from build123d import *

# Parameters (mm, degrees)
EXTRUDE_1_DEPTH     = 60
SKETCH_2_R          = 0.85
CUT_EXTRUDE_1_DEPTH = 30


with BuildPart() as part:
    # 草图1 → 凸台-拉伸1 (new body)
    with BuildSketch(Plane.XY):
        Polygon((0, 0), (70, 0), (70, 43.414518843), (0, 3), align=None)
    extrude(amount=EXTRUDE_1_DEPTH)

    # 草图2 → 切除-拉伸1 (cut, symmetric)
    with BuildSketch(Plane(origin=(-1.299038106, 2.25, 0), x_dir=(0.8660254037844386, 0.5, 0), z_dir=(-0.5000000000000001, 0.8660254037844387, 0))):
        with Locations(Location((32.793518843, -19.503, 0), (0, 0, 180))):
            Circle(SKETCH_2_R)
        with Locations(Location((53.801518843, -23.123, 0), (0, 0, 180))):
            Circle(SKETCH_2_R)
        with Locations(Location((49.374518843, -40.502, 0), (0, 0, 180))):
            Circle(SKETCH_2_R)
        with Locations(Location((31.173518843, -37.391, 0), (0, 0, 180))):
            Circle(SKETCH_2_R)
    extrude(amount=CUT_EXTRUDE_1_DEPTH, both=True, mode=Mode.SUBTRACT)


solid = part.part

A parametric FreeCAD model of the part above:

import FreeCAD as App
import Part
import Sketcher

V = App.Vector
Q = App.Units.Quantity

doc = App.newDocument("Part")
body = doc.addObject("PartDesign::Body", "Body")

# Sketch on XY plane
sketch1 = body.newObject("Sketcher::SketchObject", "Sketch")
sketch1.AttachmentSupport = (doc.getObject("XY_Plane"), [""])
sketch1.MapMode = "FlatFace"
sketch1.addGeometry(Part.LineSegment(V(0, 0, 0), V(70, 0, 0)), False)
sketch1.addGeometry(Part.LineSegment(V(70, 0, 0), V(70, 43.4, 0)), False)
sketch1.addGeometry(Part.LineSegment(V(70, 43.4, 0), V(0, 3, 0)), False)
sketch1.addGeometry(Part.LineSegment(V(0, 3, 0), V(0, 0, 0)), False)
sketch1.addConstraint(Sketcher.Constraint("Coincident", 0, 2, 1, 1))
sketch1.addConstraint(Sketcher.Constraint("Coincident", 1, 2, 2, 1))
sketch1.addConstraint(Sketcher.Constraint("Coincident", 2, 2, 3, 1))
sketch1.addConstraint(Sketcher.Constraint("Coincident", 3, 2, 0, 1))
sketch1.addConstraint(Sketcher.Constraint("Horizontal", 0))
sketch1.addConstraint(Sketcher.Constraint("Vertical", 1))
sketch1.addConstraint(Sketcher.Constraint("Vertical", 3))
sketch1.addConstraint(Sketcher.Constraint("Coincident", 3, 2, -1, 1))
sketch1.addConstraint(Sketcher.Constraint("DistanceX", 0, 1, 0, 2, Q("70 mm")))
sketch1.addConstraint(Sketcher.Constraint("DistanceY", 3, 2, 3, 1, Q("3 mm")))
sketch1.addConstraint(Sketcher.Constraint("Angle", 2, Q("-150 deg")))
pad1 = body.newObject("PartDesign::Pad", "Pad")
pad1.Profile = sketch1
pad1.Length = 60

# Sketch on an angled plane
sketch2 = body.newObject("Sketcher::SketchObject", "Sketch001")
sketch2.Placement = App.Placement(V(-1.299038, 2.25, 0), App.Rotation(V(0.866025404, 0.5, 0), V(0, 0, -1), V(-0.5, 0.866025404, 0), "ZXY"))
sketch2.addGeometry(Part.Circle(V(32.8, -19.5, 0), V(0, 0, 1), 0.8), False)
sketch2.addGeometry(Part.Circle(V(53.8, -23.1, 0), V(0, 0, 1), 0.8), False)
sketch2.addGeometry(Part.Circle(V(49.4, -40.5, 0), V(0, 0, 1), 0.8), False)
sketch2.addGeometry(Part.Circle(V(31.2, -37.4, 0), V(0, 0, 1), 0.8), False)
sketch2.addConstraint(Sketcher.Constraint("Equal", 0, 1))
sketch2.addConstraint(Sketcher.Constraint("Equal", 1, 2))
sketch2.addConstraint(Sketcher.Constraint("Equal", 2, 3))
sketch2.addConstraint(Sketcher.Constraint("Diameter", 0, Q("1.7 mm")))
sketch2.addConstraint(Sketcher.Constraint("DistanceY", 1, 3, 0, 3, Q("3.62 mm")))
sketch2.addConstraint(Sketcher.Constraint("DistanceX", 3, 3, 0, 3, Q("1.62 mm")))
sketch2.addConstraint(Sketcher.Constraint("DistanceY", 0, 3, -1, 1, Q("19.503 mm")))
sketch2.addConstraint(Sketcher.Constraint("DistanceY", 2, 3, -1, 1, Q("40.502 mm")))
sketch2.addConstraint(Sketcher.Constraint("DistanceY", 3, 3, -1, 1, Q("37.391 mm")))
sketch2.addConstraint(Sketcher.Constraint("DistanceX", 0, 3, 1, 3, Q("21.008 mm")))
sketch2.addConstraint(Sketcher.Constraint("DistanceX", 2, 3, 1, 3, Q("4.427 mm")))
sketch2.addConstraint(Sketcher.Constraint("DistanceX", -1, 1, 0, 3, Q("32.793519 mm")))
pocket1 = body.newObject("PartDesign::Pocket", "Pocket")
pocket1.Profile = sketch2
pocket1.Length = 60
pocket1.Midplane = True

doc.recompute()
